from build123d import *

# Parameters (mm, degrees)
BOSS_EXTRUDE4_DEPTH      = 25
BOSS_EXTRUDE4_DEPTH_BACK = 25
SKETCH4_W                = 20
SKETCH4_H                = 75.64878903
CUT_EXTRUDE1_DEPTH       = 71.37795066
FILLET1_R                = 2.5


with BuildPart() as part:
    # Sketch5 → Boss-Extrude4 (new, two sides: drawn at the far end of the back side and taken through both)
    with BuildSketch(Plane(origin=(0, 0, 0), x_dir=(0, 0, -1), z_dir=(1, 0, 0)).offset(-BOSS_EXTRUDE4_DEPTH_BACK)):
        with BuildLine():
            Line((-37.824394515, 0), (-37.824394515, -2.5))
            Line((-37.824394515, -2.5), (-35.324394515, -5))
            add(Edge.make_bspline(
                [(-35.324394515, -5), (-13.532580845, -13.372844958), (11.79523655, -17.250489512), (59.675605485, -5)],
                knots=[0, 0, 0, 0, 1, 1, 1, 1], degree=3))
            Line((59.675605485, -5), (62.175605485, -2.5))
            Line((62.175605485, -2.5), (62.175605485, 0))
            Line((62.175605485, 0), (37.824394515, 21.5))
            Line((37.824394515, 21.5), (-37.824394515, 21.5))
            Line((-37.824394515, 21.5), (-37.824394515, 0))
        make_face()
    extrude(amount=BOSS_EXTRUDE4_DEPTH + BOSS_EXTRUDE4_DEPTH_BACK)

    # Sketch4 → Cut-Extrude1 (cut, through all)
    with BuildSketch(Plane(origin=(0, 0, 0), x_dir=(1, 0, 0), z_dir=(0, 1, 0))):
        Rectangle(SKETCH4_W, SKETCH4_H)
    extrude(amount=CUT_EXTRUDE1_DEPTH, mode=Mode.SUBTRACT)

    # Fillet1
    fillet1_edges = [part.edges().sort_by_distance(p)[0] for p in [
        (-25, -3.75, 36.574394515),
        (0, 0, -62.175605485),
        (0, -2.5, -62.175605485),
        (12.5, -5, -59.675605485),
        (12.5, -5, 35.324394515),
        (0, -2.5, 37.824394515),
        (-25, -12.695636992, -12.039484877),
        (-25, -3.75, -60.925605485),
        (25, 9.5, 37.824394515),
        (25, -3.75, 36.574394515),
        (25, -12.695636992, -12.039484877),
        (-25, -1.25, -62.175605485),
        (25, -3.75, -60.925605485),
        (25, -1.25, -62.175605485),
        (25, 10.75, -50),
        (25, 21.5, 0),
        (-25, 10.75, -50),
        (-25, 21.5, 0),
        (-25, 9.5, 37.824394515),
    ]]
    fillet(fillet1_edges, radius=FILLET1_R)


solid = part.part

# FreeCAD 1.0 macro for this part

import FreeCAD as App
import Part
import Sketcher


def edges_at(feature, points):
    """Names of the edges that pass closest to the given points."""
    edges = feature.Shape.Edges
    near = lambda p: min(range(len(edges)), key=lambda i: edges[i].distToShape(Part.Vertex(*p))[0])
    return sorted({f"Edge{near(p) + 1}" for p in points})

doc = App.newDocument("Part")
body = doc.addObject("PartDesign::Body", "Body")

# Sketch on YZ plane
sketch1 = body.newObject("Sketcher::SketchObject", "Sketch")
sketch1.AttachmentSupport = (doc.getObject("YZ_Plane"), [""])
sketch1.MapMode = "FlatFace"
sketch1.addGeometry([
    Part.LineSegment(App.Vector(-2.5, 37.824395, 0), App.Vector(-5, 35.324395, 0)),  # 0
    Part.BSplineCurve([App.Vector(-5, 35.324395, 0), App.Vector(-13.372845, 13.532581, 0), App.Vector(-17.25049, -11.795237, 0), App.Vector(-5, -59.675605, 0)], [4, 4], [0, 1], False, 3, [1, 1, 1, 1], False),  # 1
    Part.LineSegment(App.Vector(-5, -59.675605, 0), App.Vector(-2.5, -62.175605, 0)),  # 2
    Part.LineSegment(App.Vector(-2.5, -62.175605, 0), App.Vector(0, -62.175605, 0)),  # 3
    Part.LineSegment(App.Vector(0, -62.175605, 0), App.Vector(21.5, -37.824395, 0)),  # 4
    Part.LineSegment(App.Vector(21.5, -37.824395, 0), App.Vector(21.5, 37.824395, 0)),  # 5
    Part.LineSegment(App.Vector(21.5, 37.824395, 0), App.Vector(-2.5, 37.824395, 0)),  # 6
], False)
sketch1.addConstraint([
    Sketcher.Constraint("Block", 1),
    Sketcher.Constraint("Coincident", 0, 2, 1, 1),
    Sketcher.Constraint("Coincident", 1, 2, 2, 1),
    Sketcher.Constraint("Coincident", 2, 2, 3, 1),
    Sketcher.Constraint("Coincident", 3, 2, 4, 1),
    Sketcher.Constraint("Coincident", 4, 2, 5, 1),
    Sketcher.Constraint("Coincident", 5, 2, 6, 1),
    Sketcher.Constraint("Coincident", 6, 2, 0, 1),
    Sketcher.Constraint("Horizontal", 3),
    Sketcher.Constraint("Vertical", 5),
    Sketcher.Constraint("Horizontal", 6),
    Sketcher.Constraint("PointOnObject", 3, 2, -2),
    Sketcher.Constraint("Perpendicular", 0, 2),
    Sketcher.Constraint("Vertical", 2, 2, 6, 2),
    Sketcher.Constraint("Equal", 0, 2),
    Sketcher.Constraint("DistanceX", 6, 2, 6, 1, 24.0),
    Sketcher.Constraint("DistanceX", 3, 1, 3, 2, 2.5),
    Sketcher.Constraint("DistanceY", 5, 1, 5, 2, 75.648789),
])
pad1 = body.newObject("PartDesign::Pad", "Pad")
pad1.Profile = sketch1
pad1.Type = "TwoLengths"
pad1.Length = 25
pad1.Length2 = 25

# Sketch on XZ plane
sketch2 = body.newObject("Sketcher::SketchObject", "Sketch001")
sketch2.AttachmentSupport = (doc.getObject("XZ_Plane"), [""])
sketch2.MapMode = "FlatFace"
sketch2.addGeometry([
    Part.LineSegment(App.Vector(-10, -38, 0), App.Vector(-10, 38, 0)),
    Part.LineSegment(App.Vector(-10, 38, 0), App.Vector(10, 38, 0)),
    Part.LineSegment(App.Vector(10, 38, 0), App.Vector(10, -38, 0)),
    Part.LineSegment(App.Vector(10, -38, 0), App.Vector(-10, -38, 0)),
], False)
sketch2.addConstraint([
    Sketcher.Constraint("Coincident", 0, 2, 1, 1),
    Sketcher.Constraint("Coincident", 1, 2, 2, 1),
    Sketcher.Constraint("Coincident", 2, 2, 3, 1),
    Sketcher.Constraint("Coincident", 3, 2, 0, 1),
    Sketcher.Constraint("Vertical", 0),
    Sketcher.Constraint("Horizontal", 1),
    Sketcher.Constraint("Vertical", 2),
    Sketcher.Constraint("Horizontal", 3),
    Sketcher.Constraint("Symmetric", 0, 2, 2, 2, -1, 1),
    Sketcher.Constraint("DistanceX", 1, 1, 1, 2, 20.0),
    Sketcher.Constraint("DistanceY", 0, 1, 0, 2, 75.648789),
])
pocket1 = body.newObject("PartDesign::Pocket", "Pocket")
pocket1.Profile = sketch2
pocket1.Type = "ThroughAll"
doc.recompute()

fillet = body.newObject("PartDesign::Fillet", "Fillet")
fillet.Base = (pocket1, edges_at(pocket1, [
    (-25, -3.75, 36.574),
    (0, 0, -62.176),
    (0, -2.5, -62.176),
    (0, -5, -59.676),
    (0, -5, 35.324),
    (0, -2.5, 37.824),
    (-25, -12.696, -12.039),
    (-25, -3.75, -60.926),
    (25, 9.5, 37.824),
    (25, -3.75, 36.574),
    (25, -12.696, -12.039),
    (-25, -1.25, -62.176),
    (25, -3.75, -60.926),
    (25, -1.25, -62.176),
    (25, 10.75, -50),
    (25, 21.5, 0),
    (-25, 10.75, -50),
    (-25, 21.5, 0),
    (-25, 9.5, 37.824),
]))
fillet.Radius = 2.5

doc.recompute()
